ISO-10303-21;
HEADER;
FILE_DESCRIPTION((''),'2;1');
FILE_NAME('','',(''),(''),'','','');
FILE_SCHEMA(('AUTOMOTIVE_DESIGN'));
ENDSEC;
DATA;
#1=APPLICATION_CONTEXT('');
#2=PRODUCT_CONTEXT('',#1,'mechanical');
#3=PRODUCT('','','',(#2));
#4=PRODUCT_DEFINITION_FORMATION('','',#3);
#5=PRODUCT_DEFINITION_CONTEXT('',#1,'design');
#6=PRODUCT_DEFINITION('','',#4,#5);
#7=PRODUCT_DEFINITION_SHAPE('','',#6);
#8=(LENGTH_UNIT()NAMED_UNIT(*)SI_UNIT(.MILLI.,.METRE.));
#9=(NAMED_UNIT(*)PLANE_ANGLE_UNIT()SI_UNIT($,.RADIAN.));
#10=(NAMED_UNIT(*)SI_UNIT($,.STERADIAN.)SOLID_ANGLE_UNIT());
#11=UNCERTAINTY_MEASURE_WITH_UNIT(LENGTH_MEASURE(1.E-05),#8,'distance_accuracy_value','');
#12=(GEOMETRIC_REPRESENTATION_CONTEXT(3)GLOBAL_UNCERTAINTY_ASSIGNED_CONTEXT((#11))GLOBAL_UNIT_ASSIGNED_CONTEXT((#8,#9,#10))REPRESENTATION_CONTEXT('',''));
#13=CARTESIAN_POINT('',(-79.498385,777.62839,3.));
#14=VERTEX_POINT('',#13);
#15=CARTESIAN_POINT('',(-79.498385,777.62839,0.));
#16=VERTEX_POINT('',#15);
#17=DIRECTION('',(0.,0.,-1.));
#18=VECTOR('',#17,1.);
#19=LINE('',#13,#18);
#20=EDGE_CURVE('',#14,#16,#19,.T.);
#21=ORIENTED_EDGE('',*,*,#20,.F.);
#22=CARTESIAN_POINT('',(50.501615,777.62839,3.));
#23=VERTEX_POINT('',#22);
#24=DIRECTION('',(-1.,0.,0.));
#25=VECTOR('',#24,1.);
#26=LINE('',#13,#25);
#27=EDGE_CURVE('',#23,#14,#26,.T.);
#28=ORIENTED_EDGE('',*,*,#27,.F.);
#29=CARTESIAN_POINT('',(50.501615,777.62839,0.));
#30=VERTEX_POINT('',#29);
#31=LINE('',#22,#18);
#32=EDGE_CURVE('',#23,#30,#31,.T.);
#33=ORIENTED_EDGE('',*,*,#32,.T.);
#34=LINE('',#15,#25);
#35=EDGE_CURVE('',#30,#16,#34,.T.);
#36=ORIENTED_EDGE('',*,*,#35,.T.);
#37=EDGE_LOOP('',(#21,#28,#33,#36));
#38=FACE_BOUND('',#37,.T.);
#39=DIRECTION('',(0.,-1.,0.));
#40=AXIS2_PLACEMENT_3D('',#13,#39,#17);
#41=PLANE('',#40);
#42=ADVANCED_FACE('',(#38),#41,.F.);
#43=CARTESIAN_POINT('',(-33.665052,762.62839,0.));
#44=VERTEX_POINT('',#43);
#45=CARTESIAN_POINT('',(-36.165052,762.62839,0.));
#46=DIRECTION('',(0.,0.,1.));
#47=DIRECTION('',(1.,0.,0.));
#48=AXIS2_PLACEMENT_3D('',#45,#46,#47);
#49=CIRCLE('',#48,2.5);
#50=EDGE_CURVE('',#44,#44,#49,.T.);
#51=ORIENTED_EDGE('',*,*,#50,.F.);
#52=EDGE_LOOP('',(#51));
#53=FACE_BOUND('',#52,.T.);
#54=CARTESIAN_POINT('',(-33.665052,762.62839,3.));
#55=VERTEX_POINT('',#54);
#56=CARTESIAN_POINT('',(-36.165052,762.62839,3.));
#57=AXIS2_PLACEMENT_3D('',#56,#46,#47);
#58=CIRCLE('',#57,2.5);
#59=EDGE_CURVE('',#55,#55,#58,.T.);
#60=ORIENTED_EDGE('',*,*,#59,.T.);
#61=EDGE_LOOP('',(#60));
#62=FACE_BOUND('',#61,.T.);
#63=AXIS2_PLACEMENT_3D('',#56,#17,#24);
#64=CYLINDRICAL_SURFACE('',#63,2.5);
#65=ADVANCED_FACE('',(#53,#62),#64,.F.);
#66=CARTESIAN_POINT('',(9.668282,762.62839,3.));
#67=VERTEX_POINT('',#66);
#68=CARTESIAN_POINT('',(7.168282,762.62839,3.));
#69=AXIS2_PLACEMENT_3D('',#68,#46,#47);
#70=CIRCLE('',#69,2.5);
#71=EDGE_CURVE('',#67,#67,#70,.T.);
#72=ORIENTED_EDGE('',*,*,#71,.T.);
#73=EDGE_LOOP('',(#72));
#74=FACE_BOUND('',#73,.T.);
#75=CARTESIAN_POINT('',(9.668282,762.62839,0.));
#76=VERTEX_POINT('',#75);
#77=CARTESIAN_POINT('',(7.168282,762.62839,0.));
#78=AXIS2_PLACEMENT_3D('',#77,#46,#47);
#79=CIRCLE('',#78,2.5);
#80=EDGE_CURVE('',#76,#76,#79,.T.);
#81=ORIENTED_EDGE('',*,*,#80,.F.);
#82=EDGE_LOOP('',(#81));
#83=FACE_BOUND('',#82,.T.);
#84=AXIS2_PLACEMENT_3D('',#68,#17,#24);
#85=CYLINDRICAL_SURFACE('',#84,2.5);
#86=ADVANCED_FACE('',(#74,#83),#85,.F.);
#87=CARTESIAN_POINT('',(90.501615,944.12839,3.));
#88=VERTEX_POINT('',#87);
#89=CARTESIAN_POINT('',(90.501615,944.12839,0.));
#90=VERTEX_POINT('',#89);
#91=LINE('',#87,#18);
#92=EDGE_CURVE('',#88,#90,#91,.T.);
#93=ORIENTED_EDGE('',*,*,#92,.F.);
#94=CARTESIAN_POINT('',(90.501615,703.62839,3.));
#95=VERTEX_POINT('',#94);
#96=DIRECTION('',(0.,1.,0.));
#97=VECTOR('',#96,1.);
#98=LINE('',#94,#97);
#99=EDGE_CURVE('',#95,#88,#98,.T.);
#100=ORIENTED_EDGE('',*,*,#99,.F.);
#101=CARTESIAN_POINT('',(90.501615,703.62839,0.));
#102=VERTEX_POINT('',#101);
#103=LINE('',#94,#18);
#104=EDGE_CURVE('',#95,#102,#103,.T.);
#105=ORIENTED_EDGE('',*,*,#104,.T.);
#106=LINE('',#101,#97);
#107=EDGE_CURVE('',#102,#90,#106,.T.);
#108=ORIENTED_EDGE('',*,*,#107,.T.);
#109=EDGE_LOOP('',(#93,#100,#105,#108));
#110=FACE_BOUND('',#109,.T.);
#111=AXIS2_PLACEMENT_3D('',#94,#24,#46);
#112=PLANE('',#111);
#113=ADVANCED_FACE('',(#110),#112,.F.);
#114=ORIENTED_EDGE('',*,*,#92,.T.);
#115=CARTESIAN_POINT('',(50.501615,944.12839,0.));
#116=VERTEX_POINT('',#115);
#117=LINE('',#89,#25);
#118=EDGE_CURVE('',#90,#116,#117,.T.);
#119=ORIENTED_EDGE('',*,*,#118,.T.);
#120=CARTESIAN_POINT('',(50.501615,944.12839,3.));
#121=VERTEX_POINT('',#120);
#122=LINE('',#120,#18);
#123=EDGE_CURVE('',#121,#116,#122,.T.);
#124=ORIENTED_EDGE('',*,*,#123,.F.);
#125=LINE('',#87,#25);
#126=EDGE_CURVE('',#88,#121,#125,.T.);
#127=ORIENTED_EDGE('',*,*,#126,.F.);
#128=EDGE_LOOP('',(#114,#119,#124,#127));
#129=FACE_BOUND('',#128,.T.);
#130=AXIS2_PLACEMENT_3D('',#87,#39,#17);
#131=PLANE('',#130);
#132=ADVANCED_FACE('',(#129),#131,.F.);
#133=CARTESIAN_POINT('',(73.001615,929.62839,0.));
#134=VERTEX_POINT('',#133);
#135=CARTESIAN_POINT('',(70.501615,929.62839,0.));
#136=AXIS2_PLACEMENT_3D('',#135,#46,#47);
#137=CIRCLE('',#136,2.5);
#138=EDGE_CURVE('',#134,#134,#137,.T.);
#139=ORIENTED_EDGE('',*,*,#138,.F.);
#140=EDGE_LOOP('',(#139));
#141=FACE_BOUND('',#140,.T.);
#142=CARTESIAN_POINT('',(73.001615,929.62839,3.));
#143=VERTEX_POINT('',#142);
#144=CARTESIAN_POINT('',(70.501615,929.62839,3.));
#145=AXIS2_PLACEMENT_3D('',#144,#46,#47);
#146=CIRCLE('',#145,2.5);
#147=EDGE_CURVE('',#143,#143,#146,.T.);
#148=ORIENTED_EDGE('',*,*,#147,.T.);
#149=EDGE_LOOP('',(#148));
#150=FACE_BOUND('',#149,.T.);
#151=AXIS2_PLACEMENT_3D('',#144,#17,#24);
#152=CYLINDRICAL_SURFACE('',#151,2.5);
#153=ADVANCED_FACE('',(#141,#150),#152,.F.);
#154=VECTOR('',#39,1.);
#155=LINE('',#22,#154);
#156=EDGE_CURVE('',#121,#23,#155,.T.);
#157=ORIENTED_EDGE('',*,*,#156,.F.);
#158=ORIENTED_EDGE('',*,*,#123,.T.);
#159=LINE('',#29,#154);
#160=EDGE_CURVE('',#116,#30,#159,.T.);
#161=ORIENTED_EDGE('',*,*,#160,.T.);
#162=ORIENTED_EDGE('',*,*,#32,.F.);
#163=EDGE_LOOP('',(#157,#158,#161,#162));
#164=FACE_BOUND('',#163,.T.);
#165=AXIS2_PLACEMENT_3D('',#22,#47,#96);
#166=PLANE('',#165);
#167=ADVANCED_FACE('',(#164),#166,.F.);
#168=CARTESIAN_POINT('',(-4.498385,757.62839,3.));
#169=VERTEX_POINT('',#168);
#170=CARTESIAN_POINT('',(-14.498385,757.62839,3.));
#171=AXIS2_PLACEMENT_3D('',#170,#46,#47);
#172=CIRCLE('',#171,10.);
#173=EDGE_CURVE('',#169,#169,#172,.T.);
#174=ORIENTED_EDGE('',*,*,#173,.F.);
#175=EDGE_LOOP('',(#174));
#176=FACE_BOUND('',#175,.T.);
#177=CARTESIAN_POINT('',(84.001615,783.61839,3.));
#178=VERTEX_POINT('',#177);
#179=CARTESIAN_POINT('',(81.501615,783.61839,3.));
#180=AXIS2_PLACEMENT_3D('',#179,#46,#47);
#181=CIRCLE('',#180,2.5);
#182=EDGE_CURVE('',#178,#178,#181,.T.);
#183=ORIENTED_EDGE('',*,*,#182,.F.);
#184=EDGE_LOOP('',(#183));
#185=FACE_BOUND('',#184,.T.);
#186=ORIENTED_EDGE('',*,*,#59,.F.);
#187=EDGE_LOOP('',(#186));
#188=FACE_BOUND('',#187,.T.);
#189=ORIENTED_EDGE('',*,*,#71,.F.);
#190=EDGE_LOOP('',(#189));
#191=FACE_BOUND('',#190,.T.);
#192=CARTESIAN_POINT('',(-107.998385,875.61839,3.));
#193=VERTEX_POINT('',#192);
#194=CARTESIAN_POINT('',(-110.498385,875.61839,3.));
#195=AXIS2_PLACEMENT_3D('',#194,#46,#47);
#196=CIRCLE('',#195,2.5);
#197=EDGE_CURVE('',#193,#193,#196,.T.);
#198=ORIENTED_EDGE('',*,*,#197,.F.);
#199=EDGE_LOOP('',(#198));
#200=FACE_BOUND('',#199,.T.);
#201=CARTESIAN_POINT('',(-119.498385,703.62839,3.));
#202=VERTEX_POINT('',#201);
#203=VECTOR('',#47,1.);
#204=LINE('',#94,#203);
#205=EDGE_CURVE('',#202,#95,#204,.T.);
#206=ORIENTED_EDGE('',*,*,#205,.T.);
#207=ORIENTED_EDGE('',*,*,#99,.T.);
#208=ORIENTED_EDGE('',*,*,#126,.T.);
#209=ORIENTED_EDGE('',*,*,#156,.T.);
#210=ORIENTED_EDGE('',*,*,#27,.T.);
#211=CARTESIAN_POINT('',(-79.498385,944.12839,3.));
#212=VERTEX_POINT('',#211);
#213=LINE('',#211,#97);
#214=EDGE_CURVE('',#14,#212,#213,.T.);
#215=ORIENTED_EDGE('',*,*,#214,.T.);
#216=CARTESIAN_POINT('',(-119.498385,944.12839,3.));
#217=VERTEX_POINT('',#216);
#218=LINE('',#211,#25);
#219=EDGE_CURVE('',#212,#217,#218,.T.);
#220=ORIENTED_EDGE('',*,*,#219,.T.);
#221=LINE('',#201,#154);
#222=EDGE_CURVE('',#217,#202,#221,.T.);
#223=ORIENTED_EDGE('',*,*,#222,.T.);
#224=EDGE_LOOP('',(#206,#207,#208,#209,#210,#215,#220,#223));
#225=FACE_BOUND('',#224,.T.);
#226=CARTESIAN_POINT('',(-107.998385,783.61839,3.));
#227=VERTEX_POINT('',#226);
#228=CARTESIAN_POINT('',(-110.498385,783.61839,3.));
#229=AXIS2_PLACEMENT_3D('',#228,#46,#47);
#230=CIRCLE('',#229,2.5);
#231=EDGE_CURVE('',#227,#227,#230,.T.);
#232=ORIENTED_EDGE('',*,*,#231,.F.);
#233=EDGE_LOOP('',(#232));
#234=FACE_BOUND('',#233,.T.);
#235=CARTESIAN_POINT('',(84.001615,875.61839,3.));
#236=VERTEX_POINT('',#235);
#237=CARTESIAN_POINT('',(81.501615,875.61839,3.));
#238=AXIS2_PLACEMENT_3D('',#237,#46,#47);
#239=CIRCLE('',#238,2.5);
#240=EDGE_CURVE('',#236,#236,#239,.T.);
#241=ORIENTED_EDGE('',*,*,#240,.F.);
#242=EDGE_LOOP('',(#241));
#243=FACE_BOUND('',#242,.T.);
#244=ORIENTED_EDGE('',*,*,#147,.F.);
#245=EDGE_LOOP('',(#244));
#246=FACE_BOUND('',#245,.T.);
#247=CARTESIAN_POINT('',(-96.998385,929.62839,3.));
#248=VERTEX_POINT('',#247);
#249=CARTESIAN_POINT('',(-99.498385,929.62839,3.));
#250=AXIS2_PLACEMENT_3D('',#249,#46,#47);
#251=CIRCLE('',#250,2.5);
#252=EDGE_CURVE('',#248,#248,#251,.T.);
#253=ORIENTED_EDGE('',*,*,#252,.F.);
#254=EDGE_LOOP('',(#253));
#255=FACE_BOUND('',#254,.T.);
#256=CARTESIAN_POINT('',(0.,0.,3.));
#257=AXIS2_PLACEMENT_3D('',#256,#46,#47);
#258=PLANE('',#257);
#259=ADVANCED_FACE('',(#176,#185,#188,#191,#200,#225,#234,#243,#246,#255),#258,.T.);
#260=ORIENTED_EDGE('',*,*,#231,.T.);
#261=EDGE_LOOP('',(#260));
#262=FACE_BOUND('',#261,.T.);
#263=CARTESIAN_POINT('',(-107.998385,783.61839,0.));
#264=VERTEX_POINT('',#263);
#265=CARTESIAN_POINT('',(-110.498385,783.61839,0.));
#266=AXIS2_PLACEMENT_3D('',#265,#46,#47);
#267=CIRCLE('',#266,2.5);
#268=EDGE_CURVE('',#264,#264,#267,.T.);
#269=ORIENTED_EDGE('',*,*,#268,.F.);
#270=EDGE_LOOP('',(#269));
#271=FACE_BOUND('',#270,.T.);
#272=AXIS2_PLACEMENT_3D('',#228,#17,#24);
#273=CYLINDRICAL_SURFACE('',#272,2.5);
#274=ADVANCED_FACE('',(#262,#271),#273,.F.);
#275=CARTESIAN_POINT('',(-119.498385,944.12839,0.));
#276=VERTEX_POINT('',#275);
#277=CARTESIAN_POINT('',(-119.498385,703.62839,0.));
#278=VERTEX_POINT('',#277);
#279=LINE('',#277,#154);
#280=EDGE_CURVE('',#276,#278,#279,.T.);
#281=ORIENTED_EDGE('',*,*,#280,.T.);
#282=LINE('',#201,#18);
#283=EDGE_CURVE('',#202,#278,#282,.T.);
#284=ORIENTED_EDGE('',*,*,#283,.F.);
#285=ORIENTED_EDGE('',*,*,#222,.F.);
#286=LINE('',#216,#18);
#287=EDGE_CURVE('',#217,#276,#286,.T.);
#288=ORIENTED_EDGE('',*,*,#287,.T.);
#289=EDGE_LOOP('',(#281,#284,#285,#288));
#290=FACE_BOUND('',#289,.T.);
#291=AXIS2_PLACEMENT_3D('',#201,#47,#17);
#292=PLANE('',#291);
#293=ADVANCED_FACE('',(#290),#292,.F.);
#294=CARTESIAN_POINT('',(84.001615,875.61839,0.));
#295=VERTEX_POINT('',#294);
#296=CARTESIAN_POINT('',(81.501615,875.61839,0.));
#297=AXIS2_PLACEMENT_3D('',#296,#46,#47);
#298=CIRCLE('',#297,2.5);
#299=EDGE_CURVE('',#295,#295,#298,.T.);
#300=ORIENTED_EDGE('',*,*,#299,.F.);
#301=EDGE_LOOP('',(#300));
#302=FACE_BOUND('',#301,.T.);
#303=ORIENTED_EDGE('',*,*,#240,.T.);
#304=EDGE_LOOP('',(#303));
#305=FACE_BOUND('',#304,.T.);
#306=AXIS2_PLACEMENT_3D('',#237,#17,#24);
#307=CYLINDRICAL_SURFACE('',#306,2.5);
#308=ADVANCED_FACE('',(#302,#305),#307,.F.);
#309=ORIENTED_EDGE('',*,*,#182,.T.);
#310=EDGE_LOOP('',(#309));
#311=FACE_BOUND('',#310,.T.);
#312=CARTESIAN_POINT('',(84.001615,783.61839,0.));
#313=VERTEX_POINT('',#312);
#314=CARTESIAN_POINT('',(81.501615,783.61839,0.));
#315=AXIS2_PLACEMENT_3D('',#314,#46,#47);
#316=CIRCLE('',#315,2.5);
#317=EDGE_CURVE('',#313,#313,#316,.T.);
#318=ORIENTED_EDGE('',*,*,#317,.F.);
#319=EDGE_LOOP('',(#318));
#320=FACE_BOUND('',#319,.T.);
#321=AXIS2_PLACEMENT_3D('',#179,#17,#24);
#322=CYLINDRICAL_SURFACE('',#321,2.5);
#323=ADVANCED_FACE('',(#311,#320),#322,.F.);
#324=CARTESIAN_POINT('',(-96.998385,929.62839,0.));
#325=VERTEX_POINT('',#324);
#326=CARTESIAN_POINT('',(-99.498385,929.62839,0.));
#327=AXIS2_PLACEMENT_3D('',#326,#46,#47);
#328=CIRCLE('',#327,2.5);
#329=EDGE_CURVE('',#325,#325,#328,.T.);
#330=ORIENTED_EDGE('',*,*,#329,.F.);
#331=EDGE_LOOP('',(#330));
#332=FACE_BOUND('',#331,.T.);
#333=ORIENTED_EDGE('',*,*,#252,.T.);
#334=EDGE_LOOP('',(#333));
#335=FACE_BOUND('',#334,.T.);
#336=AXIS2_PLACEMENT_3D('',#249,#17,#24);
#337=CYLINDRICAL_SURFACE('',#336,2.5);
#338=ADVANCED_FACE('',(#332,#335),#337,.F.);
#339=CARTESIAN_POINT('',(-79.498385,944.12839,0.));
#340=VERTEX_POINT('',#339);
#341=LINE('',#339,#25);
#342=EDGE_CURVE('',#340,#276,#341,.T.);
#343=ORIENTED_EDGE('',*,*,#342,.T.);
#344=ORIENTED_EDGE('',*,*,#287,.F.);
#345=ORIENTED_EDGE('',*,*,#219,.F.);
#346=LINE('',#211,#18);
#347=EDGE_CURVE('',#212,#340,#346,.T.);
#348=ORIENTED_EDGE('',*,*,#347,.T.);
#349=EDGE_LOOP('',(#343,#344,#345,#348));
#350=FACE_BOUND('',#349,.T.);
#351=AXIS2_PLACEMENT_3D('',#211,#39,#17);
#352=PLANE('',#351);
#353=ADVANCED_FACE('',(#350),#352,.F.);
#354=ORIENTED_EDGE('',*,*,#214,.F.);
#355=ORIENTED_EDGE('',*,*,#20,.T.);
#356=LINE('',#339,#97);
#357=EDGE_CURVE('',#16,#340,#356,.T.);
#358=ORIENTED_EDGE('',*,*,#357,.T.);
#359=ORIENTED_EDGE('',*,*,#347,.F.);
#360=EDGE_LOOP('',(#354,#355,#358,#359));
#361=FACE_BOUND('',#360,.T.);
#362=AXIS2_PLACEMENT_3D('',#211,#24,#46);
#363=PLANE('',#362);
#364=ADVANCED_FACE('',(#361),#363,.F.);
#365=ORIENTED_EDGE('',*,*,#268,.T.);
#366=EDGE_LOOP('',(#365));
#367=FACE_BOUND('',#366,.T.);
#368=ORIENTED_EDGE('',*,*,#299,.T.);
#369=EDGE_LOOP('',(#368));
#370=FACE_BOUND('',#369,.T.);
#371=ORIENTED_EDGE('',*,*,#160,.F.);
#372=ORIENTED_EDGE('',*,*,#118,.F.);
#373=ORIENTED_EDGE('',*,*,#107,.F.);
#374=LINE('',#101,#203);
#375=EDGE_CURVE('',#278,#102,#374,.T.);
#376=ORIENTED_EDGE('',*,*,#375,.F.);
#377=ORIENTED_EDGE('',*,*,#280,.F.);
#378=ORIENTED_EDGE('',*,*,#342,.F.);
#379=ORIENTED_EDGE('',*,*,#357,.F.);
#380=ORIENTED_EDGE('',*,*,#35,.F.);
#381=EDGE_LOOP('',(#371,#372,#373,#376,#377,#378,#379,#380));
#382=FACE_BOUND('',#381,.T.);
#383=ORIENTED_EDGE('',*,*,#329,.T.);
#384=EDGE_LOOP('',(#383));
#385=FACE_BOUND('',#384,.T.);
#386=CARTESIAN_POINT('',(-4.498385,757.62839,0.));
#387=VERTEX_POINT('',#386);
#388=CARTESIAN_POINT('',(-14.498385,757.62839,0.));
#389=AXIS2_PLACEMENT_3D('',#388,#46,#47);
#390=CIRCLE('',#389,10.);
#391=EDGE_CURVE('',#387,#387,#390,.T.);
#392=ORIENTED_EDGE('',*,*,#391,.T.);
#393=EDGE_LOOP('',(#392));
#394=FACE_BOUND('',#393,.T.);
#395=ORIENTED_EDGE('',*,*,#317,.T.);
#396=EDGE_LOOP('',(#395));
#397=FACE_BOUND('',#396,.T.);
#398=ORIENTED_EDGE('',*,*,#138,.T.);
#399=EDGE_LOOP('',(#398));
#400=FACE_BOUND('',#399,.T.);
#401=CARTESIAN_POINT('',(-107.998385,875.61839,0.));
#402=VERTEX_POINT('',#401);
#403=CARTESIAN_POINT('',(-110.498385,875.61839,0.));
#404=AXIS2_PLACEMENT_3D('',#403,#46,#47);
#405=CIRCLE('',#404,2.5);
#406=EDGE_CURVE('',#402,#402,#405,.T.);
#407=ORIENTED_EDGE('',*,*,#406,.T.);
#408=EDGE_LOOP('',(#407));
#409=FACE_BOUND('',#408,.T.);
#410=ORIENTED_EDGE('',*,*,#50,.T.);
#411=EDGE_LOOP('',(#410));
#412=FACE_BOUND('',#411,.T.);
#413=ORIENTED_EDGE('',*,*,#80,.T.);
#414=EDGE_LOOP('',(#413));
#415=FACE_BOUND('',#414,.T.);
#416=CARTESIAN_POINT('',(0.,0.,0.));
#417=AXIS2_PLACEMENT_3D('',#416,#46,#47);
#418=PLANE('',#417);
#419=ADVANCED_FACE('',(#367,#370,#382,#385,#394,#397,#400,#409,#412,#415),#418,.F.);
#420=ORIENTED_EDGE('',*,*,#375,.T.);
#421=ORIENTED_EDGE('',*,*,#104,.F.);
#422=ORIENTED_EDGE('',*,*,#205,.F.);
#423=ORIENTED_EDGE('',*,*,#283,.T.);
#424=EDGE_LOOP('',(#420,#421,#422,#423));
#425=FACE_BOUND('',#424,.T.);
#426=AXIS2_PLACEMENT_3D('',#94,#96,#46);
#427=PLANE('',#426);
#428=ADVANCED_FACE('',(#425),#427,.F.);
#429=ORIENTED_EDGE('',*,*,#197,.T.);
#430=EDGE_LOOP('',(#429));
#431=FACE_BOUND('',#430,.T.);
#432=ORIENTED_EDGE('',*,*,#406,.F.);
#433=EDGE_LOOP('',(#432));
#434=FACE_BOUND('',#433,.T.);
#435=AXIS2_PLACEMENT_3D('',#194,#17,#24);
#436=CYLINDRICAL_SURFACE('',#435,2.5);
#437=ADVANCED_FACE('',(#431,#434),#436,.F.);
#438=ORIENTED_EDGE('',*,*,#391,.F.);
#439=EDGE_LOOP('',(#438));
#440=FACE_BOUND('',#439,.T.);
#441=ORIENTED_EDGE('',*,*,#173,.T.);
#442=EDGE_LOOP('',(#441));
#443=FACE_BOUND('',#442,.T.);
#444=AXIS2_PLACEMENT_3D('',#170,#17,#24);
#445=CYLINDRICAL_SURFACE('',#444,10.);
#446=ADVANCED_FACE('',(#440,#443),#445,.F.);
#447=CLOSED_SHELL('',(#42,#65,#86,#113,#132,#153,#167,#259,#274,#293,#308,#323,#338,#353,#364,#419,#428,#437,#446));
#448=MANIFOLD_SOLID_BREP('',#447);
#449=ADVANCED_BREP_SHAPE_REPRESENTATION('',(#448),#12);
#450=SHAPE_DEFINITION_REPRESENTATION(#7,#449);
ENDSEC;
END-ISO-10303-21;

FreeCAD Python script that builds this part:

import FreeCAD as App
import Part
import Sketcher

V = App.Vector

doc = App.newDocument("Part")
body = doc.addObject("PartDesign::Body", "Body")

# Sketch on XY plane
sketch1 = body.newObject("Sketcher::SketchObject", "Sketch")
sketch1.AttachmentSupport = (doc.getObject("XY_Plane"), [""])
sketch1.MapMode = "FlatFace"
sketch1.addGeometry([
    Part.LineSegment(V(-79.498385, 777.62839, 0), V(-79.498385, 944.12839, 0)),  # 0
    Part.LineSegment(V(-79.498385, 944.12839, 0), V(-119.498385, 944.12839, 0)),  # 1
    Part.LineSegment(V(-119.498385, 944.12839, 0), V(-119.498385, 703.62839, 0)),  # 2
    Part.LineSegment(V(-119.498385, 703.62839, 0), V(90.501615, 703.62839, 0)),  # 3
    Part.LineSegment(V(90.501615, 703.62839, 0), V(90.501615, 944.12839, 0)),  # 4
    Part.LineSegment(V(90.501615, 944.12839, 0), V(50.501615, 944.12839, 0)),  # 5
    Part.LineSegment(V(50.501615, 944.12839, 0), V(50.501615, 777.62839, 0)),  # 6
    Part.LineSegment(V(50.501615, 777.62839, 0), V(-79.498385, 777.62839, 0)),  # 7
    Part.Circle(V(81.501615, 783.61839, 0), V(0, 0, 1), 2.5),  # 8
    Part.Circle(V(-14.498385, 757.62839, 0), V(0, 0, 1), 10),  # 9
    Part.Circle(V(7.168282, 762.62839, 0), V(0, 0, 1), 2.5),  # 10
    Part.Circle(V(-36.165052, 762.62839, 0), V(0, 0, 1), 2.5),  # 11
    Part.Circle(V(-110.498385, 783.61839, 0), V(0, 0, 1), 2.5),  # 12
    Part.Circle(V(81.501615, 875.61839, 0), V(0, 0, 1), 2.5),  # 13
    Part.Circle(V(70.501615, 929.62839, 0), V(0, 0, 1), 2.5),  # 14
    Part.Circle(V(-110.498385, 875.61839, 0), V(0, 0, 1), 2.5),  # 15
    Part.Circle(V(-99.498385, 929.62839, 0), V(0, 0, 1), 2.5),  # 16
], False)
sketch1.addConstraint([
    Sketcher.Constraint("Coincident", 0, 2, 1, 1),
    Sketcher.Constraint("Coincident", 1, 2, 2, 1),
    Sketcher.Constraint("Coincident", 2, 2, 3, 1),
    Sketcher.Constraint("Coincident", 3, 2, 4, 1),
    Sketcher.Constraint("Coincident", 4, 2, 5, 1),
    Sketcher.Constraint("Coincident", 5, 2, 6, 1),
    Sketcher.Constraint("Coincident", 6, 2, 7, 1),
    Sketcher.Constraint("Coincident", 7, 2, 0, 1),
    Sketcher.Constraint("Vertical", 0),
    Sketcher.Constraint("Horizontal", 1),
    Sketcher.Constraint("Vertical", 2),
    Sketcher.Constraint("Horizontal", 3),
    Sketcher.Constraint("Vertical", 4),
    Sketcher.Constraint("Horizontal", 5),
    Sketcher.Constraint("Vertical", 6),
    Sketcher.Constraint("Horizontal", 7),
    Sketcher.Constraint("Equal", 8, 10),
    Sketcher.Constraint("Equal", 10, 11),
    Sketcher.Constraint("Equal", 11, 12),
    Sketcher.Constraint("Equal", 12, 13),
    Sketcher.Constraint("Equal", 13, 14),
    Sketcher.Constraint("Equal", 14, 15),
    Sketcher.Constraint("Equal", 15, 16),
    Sketcher.Constraint("Horizontal", 10, 3, 11, 3),
    Sketcher.Constraint("Horizontal", 8, 3, 12, 3),
    Sketcher.Constraint("Horizontal", 13, 3, 15, 3),
    Sketcher.Constraint("Horizontal", 14, 3, 16, 3),
    Sketcher.Constraint("Horizontal", 1, 2, 4, 2),
    Sketcher.Constraint("Vertical", 8, 3, 13, 3),
    Sketcher.Constraint("Vertical", 12, 3, 15, 3),
    Sketcher.Constraint("Equal", 1, 5),
    Sketcher.Constraint("Diameter", 8, 5.0),
    Sketcher.Constraint("Diameter", 9, 20.0),
    Sketcher.Constraint("DistanceX", 1, 2, 1, 1, 40.0),
    Sketcher.Constraint("DistanceX", 3, 1, 3, 2, 210.0),
    Sketcher.Constraint("DistanceY", 0, 1, 0, 2, 166.5),
    Sketcher.Constraint("DistanceY", 2, 2, 2, 1, 240.5),
    Sketcher.Constraint("DistanceX", 9, 3, 8, 3, 96.0),
    Sketcher.Constraint("DistanceY", 9, 3, 10, 3, 5.0),
    Sketcher.Constraint("DistanceX", 12, 3, 9, 3, 96.0),
    Sketcher.Constraint("DistanceY", 8, 3, 13, 3, 92.0),
    Sketcher.Constraint("DistanceX", 14, 3, 13, 3, 11.0),
    Sketcher.Constraint("DistanceY", 10, 3, 14, 3, 167.0),
    Sketcher.Constraint("DistanceX", 15, 3, 16, 3, 11.0),
    Sketcher.Constraint("DistanceX", 16, 3, 0, 2, 20.0),
    Sketcher.Constraint("DistanceY", 2, 2, 11, 3, 59.0),
    Sketcher.Constraint("DistanceY", 9, 3, 8, 3, 25.99),
    Sketcher.Constraint("DistanceY", -1, 1, 8, 3, 783.61839),
    Sketcher.Constraint("DistanceX", -1, 1, 10, 3, 7.168282),
    Sketcher.Constraint("DistanceX", 11, 3, -1, 1, 36.165052),
    Sketcher.Constraint("DistanceX", -1, 1, 8, 3, 81.501615),
])
pad1 = body.newObject("PartDesign::Pad", "Pad")
pad1.Profile = sketch1
pad1.Length = 3

doc.recompute()
